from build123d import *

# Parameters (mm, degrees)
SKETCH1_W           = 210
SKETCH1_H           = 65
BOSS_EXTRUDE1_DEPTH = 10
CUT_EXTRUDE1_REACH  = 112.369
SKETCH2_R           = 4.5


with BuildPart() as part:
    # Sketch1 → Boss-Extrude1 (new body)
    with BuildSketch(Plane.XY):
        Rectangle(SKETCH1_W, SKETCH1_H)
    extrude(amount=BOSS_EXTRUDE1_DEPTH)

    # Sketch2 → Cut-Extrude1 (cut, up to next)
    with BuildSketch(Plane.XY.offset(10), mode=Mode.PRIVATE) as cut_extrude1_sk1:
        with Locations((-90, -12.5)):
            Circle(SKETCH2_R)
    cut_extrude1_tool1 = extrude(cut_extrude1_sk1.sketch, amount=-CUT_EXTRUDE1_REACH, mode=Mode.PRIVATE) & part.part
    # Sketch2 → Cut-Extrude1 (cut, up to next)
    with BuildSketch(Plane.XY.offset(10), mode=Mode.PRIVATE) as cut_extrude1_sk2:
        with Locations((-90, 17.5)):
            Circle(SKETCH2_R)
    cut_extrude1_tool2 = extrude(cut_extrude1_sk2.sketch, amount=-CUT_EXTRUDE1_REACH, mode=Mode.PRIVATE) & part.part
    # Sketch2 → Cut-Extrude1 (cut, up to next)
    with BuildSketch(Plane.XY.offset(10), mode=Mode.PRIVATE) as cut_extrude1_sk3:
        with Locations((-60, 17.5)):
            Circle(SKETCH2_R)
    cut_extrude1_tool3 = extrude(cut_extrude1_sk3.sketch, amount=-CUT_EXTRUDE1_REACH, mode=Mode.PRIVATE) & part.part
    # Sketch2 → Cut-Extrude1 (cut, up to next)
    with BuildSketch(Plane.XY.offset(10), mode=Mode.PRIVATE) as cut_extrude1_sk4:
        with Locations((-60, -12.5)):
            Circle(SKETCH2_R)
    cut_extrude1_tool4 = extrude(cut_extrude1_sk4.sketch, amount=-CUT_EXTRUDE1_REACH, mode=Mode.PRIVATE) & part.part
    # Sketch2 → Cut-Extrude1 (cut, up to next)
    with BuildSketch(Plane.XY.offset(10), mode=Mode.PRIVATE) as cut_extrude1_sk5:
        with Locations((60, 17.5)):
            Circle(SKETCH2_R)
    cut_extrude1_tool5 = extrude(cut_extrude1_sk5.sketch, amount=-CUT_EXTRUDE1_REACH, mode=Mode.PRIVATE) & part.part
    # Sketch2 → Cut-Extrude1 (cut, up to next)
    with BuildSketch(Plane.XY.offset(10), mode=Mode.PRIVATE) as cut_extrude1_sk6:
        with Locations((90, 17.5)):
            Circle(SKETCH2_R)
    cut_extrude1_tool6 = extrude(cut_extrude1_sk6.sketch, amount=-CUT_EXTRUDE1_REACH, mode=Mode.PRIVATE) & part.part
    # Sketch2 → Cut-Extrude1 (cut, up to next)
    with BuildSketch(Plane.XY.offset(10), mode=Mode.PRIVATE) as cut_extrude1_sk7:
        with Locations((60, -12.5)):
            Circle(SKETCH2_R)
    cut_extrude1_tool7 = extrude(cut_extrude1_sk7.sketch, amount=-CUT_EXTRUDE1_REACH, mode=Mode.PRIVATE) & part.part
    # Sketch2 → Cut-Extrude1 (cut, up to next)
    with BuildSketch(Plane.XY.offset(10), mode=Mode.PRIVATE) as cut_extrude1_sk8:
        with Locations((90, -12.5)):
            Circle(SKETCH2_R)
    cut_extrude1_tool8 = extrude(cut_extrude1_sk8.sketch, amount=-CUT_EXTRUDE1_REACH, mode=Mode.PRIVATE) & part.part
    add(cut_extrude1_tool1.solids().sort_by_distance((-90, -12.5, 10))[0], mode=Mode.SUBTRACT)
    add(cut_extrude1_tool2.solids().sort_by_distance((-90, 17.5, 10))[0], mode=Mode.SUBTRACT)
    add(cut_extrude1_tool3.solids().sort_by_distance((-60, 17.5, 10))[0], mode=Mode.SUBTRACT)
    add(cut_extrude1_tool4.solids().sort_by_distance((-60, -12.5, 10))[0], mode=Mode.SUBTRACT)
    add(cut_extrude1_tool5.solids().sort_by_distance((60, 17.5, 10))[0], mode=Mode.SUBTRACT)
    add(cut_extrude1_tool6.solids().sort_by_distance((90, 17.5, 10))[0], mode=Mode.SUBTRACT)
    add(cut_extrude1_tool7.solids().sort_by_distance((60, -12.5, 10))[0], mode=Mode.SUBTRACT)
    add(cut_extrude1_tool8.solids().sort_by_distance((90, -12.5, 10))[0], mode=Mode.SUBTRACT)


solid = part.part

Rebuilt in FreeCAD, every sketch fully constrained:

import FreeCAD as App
import Part
import Sketcher

V = App.Vector


def add_polygon(sketch, points):
    """Adds a closed chain of lines whose ends are joined by coincident constraints."""
    first, n = sketch.GeometryCount, len(points)
    for a, b in zip(points, points[1:] + points[:1]):
        sketch.addGeometry(Part.LineSegment(App.Vector(*a, 0), App.Vector(*b, 0)), False)
    for i in range(n):
        sketch.addConstraint(Sketcher.Constraint("Coincident", first + i, 2, first + (i + 1) % n, 1))

doc = App.newDocument("Part")
params = doc.addObject("Spreadsheet::Sheet", "Params")
for row, (alias, value) in enumerate([
    ("sketch1_width", "210 mm"),
    ("sketch1_height", "65 mm"),
    ("pad1_length", "10 mm"),
    ("sketch2_diameter", "9 mm"),
    ("sketch3_diameter", "9 mm"),
    ("sketch4_diameter", "9 mm"),
    ("sketch5_diameter", "9 mm"),
    ("sketch6_diameter", "9 mm"),
    ("sketch7_diameter", "9 mm"),
    ("sketch8_diameter", "9 mm"),
    ("sketch9_diameter", "9 mm"),
], start=1):
    params.set(f"A{row}", alias)
    params.set(f"B{row}", "=" + value)
    params.setAlias(f"B{row}", alias)

body = doc.addObject("PartDesign::Body", "Body")

sketch1 = body.newObject("Sketcher::SketchObject", "Sketch")
sketch1.AttachmentSupport = (doc.getObject("XY_Plane"), [""])
sketch1.MapMode = "FlatFace"
add_polygon(sketch1, [(-105, 32), (-105, -32), (105, -32), (105, 32)])
sketch1.addConstraint([
    Sketcher.Constraint("Vertical", 0),
    Sketcher.Constraint("Horizontal", 1),
    Sketcher.Constraint("Vertical", 2),
    Sketcher.Constraint("Horizontal", 3),
    Sketcher.Constraint("Symmetric", 0, 2, 2, 2, -1, 1),
    Sketcher.Constraint("DistanceX", 1, 1, 1, 2, 210.0),
    Sketcher.Constraint("DistanceY", 0, 2, 0, 1, 65.0),
])
sketch1.setExpression("Constraints[9]", "Params.sketch1_width")
sketch1.setExpression("Constraints[10]", "Params.sketch1_height")
pad1 = body.newObject("PartDesign::Pad", "Pad")
pad1.Profile = sketch1
pad1.setExpression("Length", "Params.pad1_length")

sketch2 = body.newObject("Sketcher::SketchObject", "Sketch001")
sketch2.AttachmentSupport = (doc.getObject("XY_Plane"), [""])
sketch2.MapMode = "FlatFace"
sketch2.AttachmentOffset = App.Placement(V(0, 0, 10), App.Rotation())
sketch2.addGeometry(Part.Circle(V(-90, -12.5, 0), V(0, 0, 1), 4.5), False)
sketch2.addConstraint([
    Sketcher.Constraint("Diameter", 0, 9.0),
    Sketcher.Constraint("DistanceX", 0, 3, -1, 1, 90.0),
    Sketcher.Constraint("DistanceY", 0, 3, -1, 1, 12.5),
])
sketch2.setExpression("Constraints[0]", "Params.sketch2_diameter")
pocket1 = body.newObject("PartDesign::Pocket", "Pocket")
pocket1.Profile = sketch2
pocket1.Type = "UpToFirst"

sketch3 = body.newObject("Sketcher::SketchObject", "Sketch002")
sketch3.AttachmentSupport = (doc.getObject("XY_Plane"), [""])
sketch3.MapMode = "FlatFace"
sketch3.AttachmentOffset = App.Placement(V(0, 0, 10), App.Rotation())
sketch3.addGeometry(Part.Circle(V(-90, 17.5, 0), V(0, 0, 1), 4.5), False)
sketch3.addConstraint([
    Sketcher.Constraint("Diameter", 0, 9.0),
    Sketcher.Constraint("DistanceX", 0, 3, -1, 1, 90.0),
    Sketcher.Constraint("DistanceY", -1, 1, 0, 3, 17.5),
])
sketch3.setExpression("Constraints[0]", "Params.sketch3_diameter")
pocket2 = body.newObject("PartDesign::Pocket", "Pocket001")
pocket2.Profile = sketch3
pocket2.Type = "UpToFirst"

sketch4 = body.newObject("Sketcher::SketchObject", "Sketch003")
sketch4.AttachmentSupport = (doc.getObject("XY_Plane"), [""])
sketch4.MapMode = "FlatFace"
sketch4.AttachmentOffset = App.Placement(V(0, 0, 10), App.Rotation())
sketch4.addGeometry(Part.Circle(V(-60, 17.5, 0), V(0, 0, 1), 4.5), False)
sketch4.addConstraint([
    Sketcher.Constraint("Diameter", 0, 9.0),
    Sketcher.Constraint("DistanceX", 0, 3, -1, 1, 60.0),
    Sketcher.Constraint("DistanceY", -1, 1, 0, 3, 17.5),
])
sketch4.setExpression("Constraints[0]", "Params.sketch4_diameter")
pocket3 = body.newObject("PartDesign::Pocket", "Pocket002")
pocket3.Profile = sketch4
pocket3.Type = "UpToFirst"

sketch5 = body.newObject("Sketcher::SketchObject", "Sketch004")
sketch5.AttachmentSupport = (doc.getObject("XY_Plane"), [""])
sketch5.MapMode = "FlatFace"
sketch5.AttachmentOffset = App.Placement(V(0, 0, 10), App.Rotation())
sketch5.addGeometry(Part.Circle(V(-60, -12.5, 0), V(0, 0, 1), 4.5), False)
sketch5.addConstraint([
    Sketcher.Constraint("Diameter", 0, 9.0),
    Sketcher.Constraint("DistanceX", 0, 3, -1, 1, 60.0),
    Sketcher.Constraint("DistanceY", 0, 3, -1, 1, 12.5),
])
sketch5.setExpression("Constraints[0]", "Params.sketch5_diameter")
pocket4 = body.newObject("PartDesign::Pocket", "Pocket003")
pocket4.Profile = sketch5
pocket4.Type = "UpToFirst"

sketch6 = body.newObject("Sketcher::SketchObject", "Sketch005")
sketch6.AttachmentSupport = (doc.getObject("XY_Plane"), [""])
sketch6.MapMode = "FlatFace"
sketch6.AttachmentOffset = App.Placement(V(0, 0, 10), App.Rotation())
sketch6.addGeometry(Part.Circle(V(60, 17.5, 0), V(0, 0, 1), 4.5), False)
sketch6.addConstraint([
    Sketcher.Constraint("Diameter", 0, 9.0),
    Sketcher.Constraint("DistanceX", -1, 1, 0, 3, 60.0),
    Sketcher.Constraint("DistanceY", -1, 1, 0, 3, 17.5),
])
sketch6.setExpression("Constraints[0]", "Params.sketch6_diameter")
pocket5 = body.newObject("PartDesign::Pocket", "Pocket004")
pocket5.Profile = sketch6
pocket5.Type = "UpToFirst"

sketch7 = body.newObject("Sketcher::SketchObject", "Sketch006")
sketch7.AttachmentSupport = (doc.getObject("XY_Plane"), [""])
sketch7.MapMode = "FlatFace"
sketch7.AttachmentOffset = App.Placement(V(0, 0, 10), App.Rotation())
sketch7.addGeometry(Part.Circle(V(90, 17.5, 0), V(0, 0, 1), 4.5), False)
sketch7.addConstraint([
    Sketcher.Constraint("Diameter", 0, 9.0),
    Sketcher.Constraint("DistanceX", -1, 1, 0, 3, 90.0),
    Sketcher.Constraint("DistanceY", -1, 1, 0, 3, 17.5),
])
sketch7.setExpression("Constraints[0]", "Params.sketch7_diameter")
pocket6 = body.newObject("PartDesign::Pocket", "Pocket005")
pocket6.Profile = sketch7
pocket6.Type = "UpToFirst"

sketch8 = body.newObject("Sketcher::SketchObject", "Sketch007")
sketch8.AttachmentSupport = (doc.getObject("XY_Plane"), [""])
sketch8.MapMode = "FlatFace"
sketch8.AttachmentOffset = App.Placement(V(0, 0, 10), App.Rotation())
sketch8.addGeometry(Part.Circle(V(60, -12.5, 0), V(0, 0, 1), 4.5), False)
sketch8.addConstraint([
    Sketcher.Constraint("Diameter", 0, 9.0),
    Sketcher.Constraint("DistanceX", -1, 1, 0, 3, 60.0),
    Sketcher.Constraint("DistanceY", 0, 3, -1, 1, 12.5),
])
sketch8.setExpression("Constraints[0]", "Params.sketch8_diameter")
pocket7 = body.newObject("PartDesign::Pocket", "Pocket006")
pocket7.Profile = sketch8
pocket7.Type = "UpToFirst"

sketch9 = body.newObject("Sketcher::SketchObject", "Sketch008")
sketch9.AttachmentSupport = (doc.getObject("XY_Plane"), [""])
sketch9.MapMode = "FlatFace"
sketch9.AttachmentOffset = App.Placement(V(0, 0, 10), App.Rotation())
sketch9.addGeometry(Part.Circle(V(90, -12.5, 0), V(0, 0, 1), 4.5), False)
sketch9.addConstraint([
    Sketcher.Constraint("Diameter", 0, 9.0),
    Sketcher.Constraint("DistanceX", -1, 1, 0, 3, 90.0),
    Sketcher.Constraint("DistanceY", 0, 3, -1, 1, 12.5),
])
sketch9.setExpression("Constraints[0]", "Params.sketch9_diameter")
pocket8 = body.newObject("PartDesign::Pocket", "Pocket007")
pocket8.Profile = sketch9
pocket8.Type = "UpToFirst"

doc.recompute()
